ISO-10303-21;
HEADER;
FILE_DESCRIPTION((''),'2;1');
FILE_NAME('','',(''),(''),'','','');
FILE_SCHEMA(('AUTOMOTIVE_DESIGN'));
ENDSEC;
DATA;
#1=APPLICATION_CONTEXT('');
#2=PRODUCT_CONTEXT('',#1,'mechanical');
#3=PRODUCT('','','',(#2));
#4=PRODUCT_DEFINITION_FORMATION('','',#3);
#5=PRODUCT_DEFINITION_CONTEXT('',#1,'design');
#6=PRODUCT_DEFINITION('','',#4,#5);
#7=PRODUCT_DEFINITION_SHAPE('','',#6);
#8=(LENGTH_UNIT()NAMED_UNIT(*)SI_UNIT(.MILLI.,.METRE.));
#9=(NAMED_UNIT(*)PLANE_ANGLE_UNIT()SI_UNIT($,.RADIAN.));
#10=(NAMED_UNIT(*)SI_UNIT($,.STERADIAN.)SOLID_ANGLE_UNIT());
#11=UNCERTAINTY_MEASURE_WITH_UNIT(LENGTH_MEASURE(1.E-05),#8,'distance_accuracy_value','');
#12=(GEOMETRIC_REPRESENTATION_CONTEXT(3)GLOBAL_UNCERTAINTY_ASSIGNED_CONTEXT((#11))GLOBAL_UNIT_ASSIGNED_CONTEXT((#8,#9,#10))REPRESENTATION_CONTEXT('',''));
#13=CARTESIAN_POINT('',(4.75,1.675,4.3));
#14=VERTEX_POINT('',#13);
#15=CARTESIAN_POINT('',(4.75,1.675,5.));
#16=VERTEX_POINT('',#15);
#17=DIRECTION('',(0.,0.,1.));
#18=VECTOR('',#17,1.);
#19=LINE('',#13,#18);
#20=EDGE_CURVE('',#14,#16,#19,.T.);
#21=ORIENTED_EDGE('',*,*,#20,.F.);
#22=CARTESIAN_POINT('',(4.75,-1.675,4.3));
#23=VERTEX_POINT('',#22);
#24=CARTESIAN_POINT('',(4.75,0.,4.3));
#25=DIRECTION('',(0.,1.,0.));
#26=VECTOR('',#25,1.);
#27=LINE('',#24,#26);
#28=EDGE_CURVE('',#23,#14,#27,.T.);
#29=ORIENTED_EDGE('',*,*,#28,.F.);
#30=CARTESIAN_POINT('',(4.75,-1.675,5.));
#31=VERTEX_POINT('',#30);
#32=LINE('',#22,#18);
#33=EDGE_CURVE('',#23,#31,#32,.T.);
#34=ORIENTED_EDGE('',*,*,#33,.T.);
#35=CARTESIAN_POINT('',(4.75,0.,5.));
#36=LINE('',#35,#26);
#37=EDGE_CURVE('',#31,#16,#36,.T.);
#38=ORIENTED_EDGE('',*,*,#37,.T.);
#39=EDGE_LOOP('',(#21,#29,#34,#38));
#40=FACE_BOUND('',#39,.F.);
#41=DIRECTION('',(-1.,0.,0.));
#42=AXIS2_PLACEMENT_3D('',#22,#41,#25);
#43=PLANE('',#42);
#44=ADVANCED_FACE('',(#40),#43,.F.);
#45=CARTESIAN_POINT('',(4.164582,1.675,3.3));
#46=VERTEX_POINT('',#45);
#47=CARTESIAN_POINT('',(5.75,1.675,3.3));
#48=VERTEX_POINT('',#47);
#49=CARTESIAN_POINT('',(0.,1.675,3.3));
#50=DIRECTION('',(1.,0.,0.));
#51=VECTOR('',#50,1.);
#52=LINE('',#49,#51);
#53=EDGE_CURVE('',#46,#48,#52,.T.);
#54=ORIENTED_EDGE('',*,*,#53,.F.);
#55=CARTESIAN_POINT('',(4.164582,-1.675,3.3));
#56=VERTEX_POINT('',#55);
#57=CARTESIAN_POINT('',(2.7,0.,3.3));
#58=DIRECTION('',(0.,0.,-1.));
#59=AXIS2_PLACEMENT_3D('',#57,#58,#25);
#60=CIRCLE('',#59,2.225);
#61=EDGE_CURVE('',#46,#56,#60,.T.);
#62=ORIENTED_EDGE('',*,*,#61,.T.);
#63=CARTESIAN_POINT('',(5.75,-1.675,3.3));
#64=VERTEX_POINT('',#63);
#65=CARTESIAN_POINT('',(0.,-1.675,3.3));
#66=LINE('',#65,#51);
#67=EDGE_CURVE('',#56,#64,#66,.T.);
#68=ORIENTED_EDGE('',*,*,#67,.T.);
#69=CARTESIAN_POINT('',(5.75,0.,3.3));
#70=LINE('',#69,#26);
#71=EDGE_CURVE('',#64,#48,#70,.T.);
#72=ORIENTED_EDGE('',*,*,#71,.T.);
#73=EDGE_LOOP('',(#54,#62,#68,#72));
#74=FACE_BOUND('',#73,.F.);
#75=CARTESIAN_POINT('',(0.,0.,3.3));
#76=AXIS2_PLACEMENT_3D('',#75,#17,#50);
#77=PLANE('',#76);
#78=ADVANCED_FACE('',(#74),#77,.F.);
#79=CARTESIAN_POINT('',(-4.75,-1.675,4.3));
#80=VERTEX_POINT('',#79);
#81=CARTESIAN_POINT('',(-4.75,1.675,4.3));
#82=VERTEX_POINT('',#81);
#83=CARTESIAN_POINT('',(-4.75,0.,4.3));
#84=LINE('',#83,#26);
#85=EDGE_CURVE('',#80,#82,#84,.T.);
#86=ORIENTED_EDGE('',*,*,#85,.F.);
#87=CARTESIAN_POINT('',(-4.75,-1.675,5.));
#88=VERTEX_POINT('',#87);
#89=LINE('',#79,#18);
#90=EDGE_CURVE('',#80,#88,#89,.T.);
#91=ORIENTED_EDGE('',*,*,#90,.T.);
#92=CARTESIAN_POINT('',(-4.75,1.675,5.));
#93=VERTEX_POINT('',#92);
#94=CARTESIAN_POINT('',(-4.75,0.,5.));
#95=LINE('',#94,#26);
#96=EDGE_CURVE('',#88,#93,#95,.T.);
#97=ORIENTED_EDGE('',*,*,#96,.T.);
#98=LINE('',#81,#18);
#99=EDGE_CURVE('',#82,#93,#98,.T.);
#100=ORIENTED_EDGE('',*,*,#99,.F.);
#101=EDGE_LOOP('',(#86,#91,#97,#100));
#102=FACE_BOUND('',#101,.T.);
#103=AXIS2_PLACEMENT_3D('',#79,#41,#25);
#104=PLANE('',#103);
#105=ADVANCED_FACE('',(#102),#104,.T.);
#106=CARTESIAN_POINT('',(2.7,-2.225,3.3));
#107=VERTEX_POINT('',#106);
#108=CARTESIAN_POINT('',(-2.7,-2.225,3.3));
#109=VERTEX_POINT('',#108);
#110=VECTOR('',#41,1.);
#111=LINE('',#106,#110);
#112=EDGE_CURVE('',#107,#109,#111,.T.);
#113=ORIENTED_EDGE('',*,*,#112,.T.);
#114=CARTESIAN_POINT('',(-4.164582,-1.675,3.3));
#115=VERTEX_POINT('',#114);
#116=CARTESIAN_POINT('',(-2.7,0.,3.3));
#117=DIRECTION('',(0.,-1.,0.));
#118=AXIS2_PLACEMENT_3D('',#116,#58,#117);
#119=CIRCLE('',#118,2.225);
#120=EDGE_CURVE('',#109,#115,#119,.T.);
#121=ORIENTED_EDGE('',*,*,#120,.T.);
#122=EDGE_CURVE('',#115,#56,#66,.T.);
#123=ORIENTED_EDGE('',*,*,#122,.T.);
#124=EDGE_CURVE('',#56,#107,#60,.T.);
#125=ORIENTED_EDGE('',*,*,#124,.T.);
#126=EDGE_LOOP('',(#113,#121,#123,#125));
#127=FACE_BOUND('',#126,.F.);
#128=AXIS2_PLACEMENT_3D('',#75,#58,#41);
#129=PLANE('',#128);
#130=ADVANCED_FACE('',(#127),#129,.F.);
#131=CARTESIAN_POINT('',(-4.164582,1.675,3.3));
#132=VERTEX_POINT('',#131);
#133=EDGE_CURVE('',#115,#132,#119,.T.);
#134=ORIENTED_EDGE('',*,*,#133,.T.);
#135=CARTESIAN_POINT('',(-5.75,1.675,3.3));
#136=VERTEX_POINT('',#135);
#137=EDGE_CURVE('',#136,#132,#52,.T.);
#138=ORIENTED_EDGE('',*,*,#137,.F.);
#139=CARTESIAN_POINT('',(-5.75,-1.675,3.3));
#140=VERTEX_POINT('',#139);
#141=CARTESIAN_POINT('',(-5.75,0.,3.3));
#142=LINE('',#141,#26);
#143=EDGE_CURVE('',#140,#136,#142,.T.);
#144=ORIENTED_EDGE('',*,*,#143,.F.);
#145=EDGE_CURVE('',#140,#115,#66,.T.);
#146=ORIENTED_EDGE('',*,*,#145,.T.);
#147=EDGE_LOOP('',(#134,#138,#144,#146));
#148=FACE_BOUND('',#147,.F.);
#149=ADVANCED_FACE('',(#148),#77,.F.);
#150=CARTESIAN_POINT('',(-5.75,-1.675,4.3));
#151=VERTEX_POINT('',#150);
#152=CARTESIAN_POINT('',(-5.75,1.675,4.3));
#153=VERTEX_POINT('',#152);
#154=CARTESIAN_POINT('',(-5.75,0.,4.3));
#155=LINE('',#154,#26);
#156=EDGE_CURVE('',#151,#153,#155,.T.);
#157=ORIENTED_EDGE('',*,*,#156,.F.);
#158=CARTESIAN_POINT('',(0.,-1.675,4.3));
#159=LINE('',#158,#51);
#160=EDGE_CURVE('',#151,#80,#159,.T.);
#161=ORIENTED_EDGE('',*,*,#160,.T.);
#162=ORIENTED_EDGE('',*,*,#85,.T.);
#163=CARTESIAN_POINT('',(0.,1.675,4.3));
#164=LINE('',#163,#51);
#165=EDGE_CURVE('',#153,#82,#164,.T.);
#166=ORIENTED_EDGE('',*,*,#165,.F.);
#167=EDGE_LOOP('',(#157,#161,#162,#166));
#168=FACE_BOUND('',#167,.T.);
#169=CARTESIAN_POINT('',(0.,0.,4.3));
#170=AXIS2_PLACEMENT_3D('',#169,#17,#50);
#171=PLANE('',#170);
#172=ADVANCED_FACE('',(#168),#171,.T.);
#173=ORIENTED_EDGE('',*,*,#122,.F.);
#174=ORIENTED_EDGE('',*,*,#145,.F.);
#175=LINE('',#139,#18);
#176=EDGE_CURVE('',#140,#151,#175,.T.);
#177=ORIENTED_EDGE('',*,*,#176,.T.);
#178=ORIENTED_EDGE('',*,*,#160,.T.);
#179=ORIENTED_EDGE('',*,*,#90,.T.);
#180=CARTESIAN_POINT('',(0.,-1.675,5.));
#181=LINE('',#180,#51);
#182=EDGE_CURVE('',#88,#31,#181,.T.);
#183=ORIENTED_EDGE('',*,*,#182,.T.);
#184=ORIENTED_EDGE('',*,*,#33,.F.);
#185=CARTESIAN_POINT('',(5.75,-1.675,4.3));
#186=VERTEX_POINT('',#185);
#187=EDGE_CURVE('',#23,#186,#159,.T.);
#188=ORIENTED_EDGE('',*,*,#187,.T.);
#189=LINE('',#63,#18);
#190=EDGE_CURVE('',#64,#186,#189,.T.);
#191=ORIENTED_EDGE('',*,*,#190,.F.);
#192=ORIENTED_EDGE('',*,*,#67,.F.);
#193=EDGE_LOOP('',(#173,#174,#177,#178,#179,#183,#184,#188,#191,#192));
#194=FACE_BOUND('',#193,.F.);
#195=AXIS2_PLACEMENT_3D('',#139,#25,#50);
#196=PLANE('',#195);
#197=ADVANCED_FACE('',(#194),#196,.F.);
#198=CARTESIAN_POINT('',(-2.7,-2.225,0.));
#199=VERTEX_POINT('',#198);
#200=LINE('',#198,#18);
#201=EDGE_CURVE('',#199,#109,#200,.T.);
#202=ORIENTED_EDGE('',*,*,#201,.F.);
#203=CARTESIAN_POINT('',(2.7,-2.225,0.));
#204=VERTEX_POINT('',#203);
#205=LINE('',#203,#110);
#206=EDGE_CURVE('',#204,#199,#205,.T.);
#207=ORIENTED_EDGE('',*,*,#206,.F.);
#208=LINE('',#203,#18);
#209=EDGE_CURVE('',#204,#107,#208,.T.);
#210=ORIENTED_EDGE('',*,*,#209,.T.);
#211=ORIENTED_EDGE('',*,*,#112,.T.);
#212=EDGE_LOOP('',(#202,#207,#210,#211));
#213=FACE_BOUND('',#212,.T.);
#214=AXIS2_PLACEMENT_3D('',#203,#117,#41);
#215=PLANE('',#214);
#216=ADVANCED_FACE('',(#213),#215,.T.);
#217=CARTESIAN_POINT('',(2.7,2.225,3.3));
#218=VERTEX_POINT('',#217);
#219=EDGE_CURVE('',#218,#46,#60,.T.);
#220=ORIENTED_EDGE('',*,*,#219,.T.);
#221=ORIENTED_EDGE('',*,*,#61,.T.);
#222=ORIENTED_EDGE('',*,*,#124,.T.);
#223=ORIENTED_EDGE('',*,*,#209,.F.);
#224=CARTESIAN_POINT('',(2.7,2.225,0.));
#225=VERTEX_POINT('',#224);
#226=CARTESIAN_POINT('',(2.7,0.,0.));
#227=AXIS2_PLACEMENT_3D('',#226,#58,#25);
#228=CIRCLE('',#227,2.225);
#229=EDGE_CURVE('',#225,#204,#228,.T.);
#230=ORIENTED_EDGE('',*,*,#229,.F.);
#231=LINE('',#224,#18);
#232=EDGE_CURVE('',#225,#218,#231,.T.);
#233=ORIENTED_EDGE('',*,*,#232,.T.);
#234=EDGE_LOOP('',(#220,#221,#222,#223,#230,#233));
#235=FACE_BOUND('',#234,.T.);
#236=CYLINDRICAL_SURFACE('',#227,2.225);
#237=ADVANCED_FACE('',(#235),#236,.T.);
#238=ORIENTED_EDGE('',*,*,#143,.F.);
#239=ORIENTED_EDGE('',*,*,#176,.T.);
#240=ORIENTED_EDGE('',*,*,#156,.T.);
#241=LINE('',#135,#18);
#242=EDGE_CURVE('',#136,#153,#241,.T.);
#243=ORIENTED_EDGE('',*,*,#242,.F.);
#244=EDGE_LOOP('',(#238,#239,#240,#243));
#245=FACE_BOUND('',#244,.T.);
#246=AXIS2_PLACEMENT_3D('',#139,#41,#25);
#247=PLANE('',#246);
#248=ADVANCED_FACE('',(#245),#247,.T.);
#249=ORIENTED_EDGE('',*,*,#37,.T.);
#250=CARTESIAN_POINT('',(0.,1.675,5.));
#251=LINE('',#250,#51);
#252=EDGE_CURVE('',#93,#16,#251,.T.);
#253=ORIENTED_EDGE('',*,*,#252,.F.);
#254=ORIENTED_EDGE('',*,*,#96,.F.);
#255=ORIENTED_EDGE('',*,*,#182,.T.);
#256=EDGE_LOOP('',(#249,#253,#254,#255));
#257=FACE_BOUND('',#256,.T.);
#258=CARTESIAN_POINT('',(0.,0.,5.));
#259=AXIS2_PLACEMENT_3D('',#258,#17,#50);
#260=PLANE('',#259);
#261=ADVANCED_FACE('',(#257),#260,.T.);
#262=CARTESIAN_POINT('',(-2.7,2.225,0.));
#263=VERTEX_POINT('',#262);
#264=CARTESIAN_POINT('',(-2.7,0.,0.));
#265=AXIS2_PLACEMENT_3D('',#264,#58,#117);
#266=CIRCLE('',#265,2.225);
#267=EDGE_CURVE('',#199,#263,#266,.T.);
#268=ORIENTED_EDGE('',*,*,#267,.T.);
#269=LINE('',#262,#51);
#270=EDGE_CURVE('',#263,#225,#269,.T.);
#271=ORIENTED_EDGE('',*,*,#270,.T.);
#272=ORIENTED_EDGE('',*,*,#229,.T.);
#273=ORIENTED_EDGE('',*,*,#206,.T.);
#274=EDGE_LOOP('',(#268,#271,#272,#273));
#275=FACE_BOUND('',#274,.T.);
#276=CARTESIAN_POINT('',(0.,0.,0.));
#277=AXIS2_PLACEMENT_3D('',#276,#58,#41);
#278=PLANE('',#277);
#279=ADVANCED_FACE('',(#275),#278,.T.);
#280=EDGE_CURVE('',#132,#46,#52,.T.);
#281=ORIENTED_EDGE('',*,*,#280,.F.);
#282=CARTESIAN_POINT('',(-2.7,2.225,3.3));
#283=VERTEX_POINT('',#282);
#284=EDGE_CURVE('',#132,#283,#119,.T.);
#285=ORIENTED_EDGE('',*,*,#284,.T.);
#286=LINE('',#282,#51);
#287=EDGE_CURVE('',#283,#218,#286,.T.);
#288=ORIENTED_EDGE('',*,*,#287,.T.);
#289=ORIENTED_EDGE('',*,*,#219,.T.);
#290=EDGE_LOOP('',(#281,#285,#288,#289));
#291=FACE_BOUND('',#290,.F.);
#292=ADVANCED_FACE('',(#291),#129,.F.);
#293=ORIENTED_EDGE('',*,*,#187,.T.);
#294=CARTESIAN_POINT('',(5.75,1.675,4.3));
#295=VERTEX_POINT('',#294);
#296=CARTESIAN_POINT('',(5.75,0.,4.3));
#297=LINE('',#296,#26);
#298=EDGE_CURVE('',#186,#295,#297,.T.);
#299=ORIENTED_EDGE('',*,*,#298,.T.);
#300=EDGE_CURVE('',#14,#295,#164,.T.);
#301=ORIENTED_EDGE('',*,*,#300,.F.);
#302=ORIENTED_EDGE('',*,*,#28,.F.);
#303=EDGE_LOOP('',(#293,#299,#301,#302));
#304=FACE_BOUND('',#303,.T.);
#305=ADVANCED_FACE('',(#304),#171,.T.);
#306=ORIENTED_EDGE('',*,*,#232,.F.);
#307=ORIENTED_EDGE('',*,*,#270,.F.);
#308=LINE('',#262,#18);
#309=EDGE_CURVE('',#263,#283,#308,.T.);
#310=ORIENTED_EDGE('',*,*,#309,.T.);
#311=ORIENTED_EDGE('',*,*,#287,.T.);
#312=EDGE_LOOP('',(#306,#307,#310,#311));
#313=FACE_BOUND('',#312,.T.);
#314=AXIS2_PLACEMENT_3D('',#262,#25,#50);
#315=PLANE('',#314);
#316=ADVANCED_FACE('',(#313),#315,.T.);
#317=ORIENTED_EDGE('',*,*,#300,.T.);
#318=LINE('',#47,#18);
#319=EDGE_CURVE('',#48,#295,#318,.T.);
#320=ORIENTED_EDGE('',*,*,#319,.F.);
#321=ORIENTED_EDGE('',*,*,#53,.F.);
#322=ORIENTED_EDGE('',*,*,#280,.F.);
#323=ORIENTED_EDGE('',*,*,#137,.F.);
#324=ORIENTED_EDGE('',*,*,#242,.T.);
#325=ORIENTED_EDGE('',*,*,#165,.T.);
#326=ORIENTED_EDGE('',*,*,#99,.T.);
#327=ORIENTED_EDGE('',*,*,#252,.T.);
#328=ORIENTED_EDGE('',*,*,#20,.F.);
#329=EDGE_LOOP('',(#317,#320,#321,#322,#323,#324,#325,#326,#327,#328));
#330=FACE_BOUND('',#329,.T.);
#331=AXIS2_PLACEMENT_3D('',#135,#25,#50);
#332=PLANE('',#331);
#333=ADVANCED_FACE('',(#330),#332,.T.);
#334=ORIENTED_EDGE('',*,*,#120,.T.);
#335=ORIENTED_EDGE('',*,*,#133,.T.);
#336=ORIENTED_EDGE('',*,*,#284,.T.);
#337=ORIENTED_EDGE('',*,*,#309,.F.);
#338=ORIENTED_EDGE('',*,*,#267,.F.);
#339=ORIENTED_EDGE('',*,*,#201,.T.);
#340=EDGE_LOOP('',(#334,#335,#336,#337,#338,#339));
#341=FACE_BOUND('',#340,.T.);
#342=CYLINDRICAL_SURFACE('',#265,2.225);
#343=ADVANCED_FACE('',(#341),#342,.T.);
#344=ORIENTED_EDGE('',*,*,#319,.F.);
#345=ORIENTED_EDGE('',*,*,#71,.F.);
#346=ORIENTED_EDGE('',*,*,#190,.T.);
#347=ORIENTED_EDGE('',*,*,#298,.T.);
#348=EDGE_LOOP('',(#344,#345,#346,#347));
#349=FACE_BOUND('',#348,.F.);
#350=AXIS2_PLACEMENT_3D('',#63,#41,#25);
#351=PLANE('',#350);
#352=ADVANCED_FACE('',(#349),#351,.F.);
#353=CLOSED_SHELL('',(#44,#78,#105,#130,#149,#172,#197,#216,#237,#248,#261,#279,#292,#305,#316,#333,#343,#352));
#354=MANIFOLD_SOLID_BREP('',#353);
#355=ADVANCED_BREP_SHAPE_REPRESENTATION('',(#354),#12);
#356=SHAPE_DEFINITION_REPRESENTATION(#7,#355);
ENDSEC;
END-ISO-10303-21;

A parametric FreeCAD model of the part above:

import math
import FreeCAD as App
import Part
import Sketcher
Q = App.Units.Quantity

doc = App.newDocument("Part")
params = doc.addObject("Spreadsheet::Sheet", "Params")
for row, (alias, value) in enumerate([
    ("sketch1_width", "5.4 mm"),
    ("pad1_length", "3.3 mm"),
    ("sketch2_width", "11.5 mm"),
    ("sketch2_height", "3.35 mm"),
    ("pad2_length", "1 mm"),
    ("sketch3_width", "9.5 mm"),
    ("sketch3_height", "3.35 mm"),
    ("pad3_length", "0.7 mm"),
], start=1):
    params.set(f"A{row}", alias)
    params.set(f"B{row}", "=" + value)
    params.setAlias(f"B{row}", alias)

body = doc.addObject("PartDesign::Body", "Body")

# Sketch on XY plane
sketch1 = body.newObject("Sketcher::SketchObject", "Sketch")
sketch1.AttachmentSupport = (doc.getObject("XY_Plane"), [""])
sketch1.MapMode = "FlatFace"
sketch1.addGeometry([
    Part.LineSegment(App.Vector(2.7, 2.225, 0), App.Vector(-2.7, 2.225, 0)),
    Part.ArcOfCircle(Part.Circle(App.Vector(-2.7, 0, 0), App.Vector(0, 0, 1), 2.225), math.radians(90), math.radians(270)),
    Part.LineSegment(App.Vector(-2.7, -2.225, 0), App.Vector(2.7, -2.225, 0)),
    Part.ArcOfCircle(Part.Circle(App.Vector(2.7, 0, 0), App.Vector(0, 0, 1), 2.225), math.radians(-90), math.radians(90)),
], False)
sketch1.addConstraint([
    Sketcher.Constraint("Tangent", 0, 2, 1, 1),
    Sketcher.Constraint("Tangent", 1, 2, 2, 1),
    Sketcher.Constraint("Tangent", 2, 2, 3, 1),
    Sketcher.Constraint("Tangent", 3, 2, 0, 1),
    Sketcher.Constraint("Horizontal", 0),
    Sketcher.Constraint("Horizontal", 2),
    Sketcher.Constraint("Symmetric", 1, 3, 3, 3, -1, 1),
    Sketcher.Constraint("DistanceX", 0, 2, 0, 1, Q("5.4 mm")),
    Sketcher.Constraint("Radius", 1, Q("2.225 mm")),
])
sketch1.setExpression("Constraints[7]", "Params.sketch1_width")
pad1 = body.newObject("PartDesign::Pad", "Pad")
pad1.Profile = sketch1
pad1.setExpression("Length", "Params.pad1_length")

# Sketch on XY plane
sketch2 = body.newObject("Sketcher::SketchObject", "Sketch001")
sketch2.AttachmentSupport = (doc.getObject("XY_Plane"), [""])
sketch2.MapMode = "FlatFace"
sketch2.AttachmentOffset = App.Placement(App.Vector(0, 0, 3.3), App.Rotation())
sketch2.addGeometry([
    Part.LineSegment(App.Vector(-5.75, 1.675, 0), App.Vector(-5.75, -1.675, 0)),
    Part.LineSegment(App.Vector(-5.75, -1.675, 0), App.Vector(5.75, -1.675, 0)),
    Part.LineSegment(App.Vector(5.75, -1.675, 0), App.Vector(5.75, 1.675, 0)),
    Part.LineSegment(App.Vector(5.75, 1.675, 0), App.Vector(-5.75, 1.675, 0)),
], False)
sketch2.addConstraint([
    Sketcher.Constraint("Coincident", 0, 2, 1, 1),
    Sketcher.Constraint("Coincident", 1, 2, 2, 1),
    Sketcher.Constraint("Coincident", 2, 2, 3, 1),
    Sketcher.Constraint("Coincident", 3, 2, 0, 1),
    Sketcher.Constraint("Vertical", 0),
    Sketcher.Constraint("Horizontal", 1),
    Sketcher.Constraint("Vertical", 2),
    Sketcher.Constraint("Horizontal", 3),
    Sketcher.Constraint("Symmetric", 0, 2, 2, 2, -1, 1),
    Sketcher.Constraint("DistanceX", 1, 1, 1, 2, Q("11.5 mm")),
    Sketcher.Constraint("DistanceY", 0, 2, 0, 1, Q("3.35 mm")),
])
sketch2.setExpression("Constraints[9]", "Params.sketch2_width")
sketch2.setExpression("Constraints[10]", "Params.sketch2_height")
pad2 = body.newObject("PartDesign::Pad", "Pad001")
pad2.Profile = sketch2
pad2.setExpression("Length", "Params.pad2_length")

# Sketch on XY plane
sketch3 = body.newObject("Sketcher::SketchObject", "Sketch002")
sketch3.AttachmentSupport = (doc.getObject("XY_Plane"), [""])
sketch3.MapMode = "FlatFace"
sketch3.AttachmentOffset = App.Placement(App.Vector(0, 0, 4.3), App.Rotation())
sketch3.addGeometry([
    Part.LineSegment(App.Vector(-4.75, 1.675, 0), App.Vector(-4.75, -1.675, 0)),
    Part.LineSegment(App.Vector(-4.75, -1.675, 0), App.Vector(4.75, -1.675, 0)),
    Part.LineSegment(App.Vector(4.75, -1.675, 0), App.Vector(4.75, 1.675, 0)),
    Part.LineSegment(App.Vector(4.75, 1.675, 0), App.Vector(-4.75, 1.675, 0)),
], False)
sketch3.addConstraint([
    Sketcher.Constraint("Coincident", 0, 2, 1, 1),
    Sketcher.Constraint("Coincident", 1, 2, 2, 1),
    Sketcher.Constraint("Coincident", 2, 2, 3, 1),
    Sketcher.Constraint("Coincident", 3, 2, 0, 1),
    Sketcher.Constraint("Vertical", 0),
    Sketcher.Constraint("Horizontal", 1),
    Sketcher.Constraint("Vertical", 2),
    Sketcher.Constraint("Horizontal", 3),
    Sketcher.Constraint("Symmetric", 0, 2, 2, 2, -1, 1),
    Sketcher.Constraint("DistanceX", 1, 1, 1, 2, Q("9.5 mm")),
    Sketcher.Constraint("DistanceY", 0, 2, 0, 1, Q("3.35 mm")),
])
sketch3.setExpression("Constraints[9]", "Params.sketch3_width")
sketch3.setExpression("Constraints[10]", "Params.sketch3_height")
pad3 = body.newObject("PartDesign::Pad", "Pad002")
pad3.Profile = sketch3
pad3.setExpression("Length", "Params.pad3_length")

doc.recompute()
